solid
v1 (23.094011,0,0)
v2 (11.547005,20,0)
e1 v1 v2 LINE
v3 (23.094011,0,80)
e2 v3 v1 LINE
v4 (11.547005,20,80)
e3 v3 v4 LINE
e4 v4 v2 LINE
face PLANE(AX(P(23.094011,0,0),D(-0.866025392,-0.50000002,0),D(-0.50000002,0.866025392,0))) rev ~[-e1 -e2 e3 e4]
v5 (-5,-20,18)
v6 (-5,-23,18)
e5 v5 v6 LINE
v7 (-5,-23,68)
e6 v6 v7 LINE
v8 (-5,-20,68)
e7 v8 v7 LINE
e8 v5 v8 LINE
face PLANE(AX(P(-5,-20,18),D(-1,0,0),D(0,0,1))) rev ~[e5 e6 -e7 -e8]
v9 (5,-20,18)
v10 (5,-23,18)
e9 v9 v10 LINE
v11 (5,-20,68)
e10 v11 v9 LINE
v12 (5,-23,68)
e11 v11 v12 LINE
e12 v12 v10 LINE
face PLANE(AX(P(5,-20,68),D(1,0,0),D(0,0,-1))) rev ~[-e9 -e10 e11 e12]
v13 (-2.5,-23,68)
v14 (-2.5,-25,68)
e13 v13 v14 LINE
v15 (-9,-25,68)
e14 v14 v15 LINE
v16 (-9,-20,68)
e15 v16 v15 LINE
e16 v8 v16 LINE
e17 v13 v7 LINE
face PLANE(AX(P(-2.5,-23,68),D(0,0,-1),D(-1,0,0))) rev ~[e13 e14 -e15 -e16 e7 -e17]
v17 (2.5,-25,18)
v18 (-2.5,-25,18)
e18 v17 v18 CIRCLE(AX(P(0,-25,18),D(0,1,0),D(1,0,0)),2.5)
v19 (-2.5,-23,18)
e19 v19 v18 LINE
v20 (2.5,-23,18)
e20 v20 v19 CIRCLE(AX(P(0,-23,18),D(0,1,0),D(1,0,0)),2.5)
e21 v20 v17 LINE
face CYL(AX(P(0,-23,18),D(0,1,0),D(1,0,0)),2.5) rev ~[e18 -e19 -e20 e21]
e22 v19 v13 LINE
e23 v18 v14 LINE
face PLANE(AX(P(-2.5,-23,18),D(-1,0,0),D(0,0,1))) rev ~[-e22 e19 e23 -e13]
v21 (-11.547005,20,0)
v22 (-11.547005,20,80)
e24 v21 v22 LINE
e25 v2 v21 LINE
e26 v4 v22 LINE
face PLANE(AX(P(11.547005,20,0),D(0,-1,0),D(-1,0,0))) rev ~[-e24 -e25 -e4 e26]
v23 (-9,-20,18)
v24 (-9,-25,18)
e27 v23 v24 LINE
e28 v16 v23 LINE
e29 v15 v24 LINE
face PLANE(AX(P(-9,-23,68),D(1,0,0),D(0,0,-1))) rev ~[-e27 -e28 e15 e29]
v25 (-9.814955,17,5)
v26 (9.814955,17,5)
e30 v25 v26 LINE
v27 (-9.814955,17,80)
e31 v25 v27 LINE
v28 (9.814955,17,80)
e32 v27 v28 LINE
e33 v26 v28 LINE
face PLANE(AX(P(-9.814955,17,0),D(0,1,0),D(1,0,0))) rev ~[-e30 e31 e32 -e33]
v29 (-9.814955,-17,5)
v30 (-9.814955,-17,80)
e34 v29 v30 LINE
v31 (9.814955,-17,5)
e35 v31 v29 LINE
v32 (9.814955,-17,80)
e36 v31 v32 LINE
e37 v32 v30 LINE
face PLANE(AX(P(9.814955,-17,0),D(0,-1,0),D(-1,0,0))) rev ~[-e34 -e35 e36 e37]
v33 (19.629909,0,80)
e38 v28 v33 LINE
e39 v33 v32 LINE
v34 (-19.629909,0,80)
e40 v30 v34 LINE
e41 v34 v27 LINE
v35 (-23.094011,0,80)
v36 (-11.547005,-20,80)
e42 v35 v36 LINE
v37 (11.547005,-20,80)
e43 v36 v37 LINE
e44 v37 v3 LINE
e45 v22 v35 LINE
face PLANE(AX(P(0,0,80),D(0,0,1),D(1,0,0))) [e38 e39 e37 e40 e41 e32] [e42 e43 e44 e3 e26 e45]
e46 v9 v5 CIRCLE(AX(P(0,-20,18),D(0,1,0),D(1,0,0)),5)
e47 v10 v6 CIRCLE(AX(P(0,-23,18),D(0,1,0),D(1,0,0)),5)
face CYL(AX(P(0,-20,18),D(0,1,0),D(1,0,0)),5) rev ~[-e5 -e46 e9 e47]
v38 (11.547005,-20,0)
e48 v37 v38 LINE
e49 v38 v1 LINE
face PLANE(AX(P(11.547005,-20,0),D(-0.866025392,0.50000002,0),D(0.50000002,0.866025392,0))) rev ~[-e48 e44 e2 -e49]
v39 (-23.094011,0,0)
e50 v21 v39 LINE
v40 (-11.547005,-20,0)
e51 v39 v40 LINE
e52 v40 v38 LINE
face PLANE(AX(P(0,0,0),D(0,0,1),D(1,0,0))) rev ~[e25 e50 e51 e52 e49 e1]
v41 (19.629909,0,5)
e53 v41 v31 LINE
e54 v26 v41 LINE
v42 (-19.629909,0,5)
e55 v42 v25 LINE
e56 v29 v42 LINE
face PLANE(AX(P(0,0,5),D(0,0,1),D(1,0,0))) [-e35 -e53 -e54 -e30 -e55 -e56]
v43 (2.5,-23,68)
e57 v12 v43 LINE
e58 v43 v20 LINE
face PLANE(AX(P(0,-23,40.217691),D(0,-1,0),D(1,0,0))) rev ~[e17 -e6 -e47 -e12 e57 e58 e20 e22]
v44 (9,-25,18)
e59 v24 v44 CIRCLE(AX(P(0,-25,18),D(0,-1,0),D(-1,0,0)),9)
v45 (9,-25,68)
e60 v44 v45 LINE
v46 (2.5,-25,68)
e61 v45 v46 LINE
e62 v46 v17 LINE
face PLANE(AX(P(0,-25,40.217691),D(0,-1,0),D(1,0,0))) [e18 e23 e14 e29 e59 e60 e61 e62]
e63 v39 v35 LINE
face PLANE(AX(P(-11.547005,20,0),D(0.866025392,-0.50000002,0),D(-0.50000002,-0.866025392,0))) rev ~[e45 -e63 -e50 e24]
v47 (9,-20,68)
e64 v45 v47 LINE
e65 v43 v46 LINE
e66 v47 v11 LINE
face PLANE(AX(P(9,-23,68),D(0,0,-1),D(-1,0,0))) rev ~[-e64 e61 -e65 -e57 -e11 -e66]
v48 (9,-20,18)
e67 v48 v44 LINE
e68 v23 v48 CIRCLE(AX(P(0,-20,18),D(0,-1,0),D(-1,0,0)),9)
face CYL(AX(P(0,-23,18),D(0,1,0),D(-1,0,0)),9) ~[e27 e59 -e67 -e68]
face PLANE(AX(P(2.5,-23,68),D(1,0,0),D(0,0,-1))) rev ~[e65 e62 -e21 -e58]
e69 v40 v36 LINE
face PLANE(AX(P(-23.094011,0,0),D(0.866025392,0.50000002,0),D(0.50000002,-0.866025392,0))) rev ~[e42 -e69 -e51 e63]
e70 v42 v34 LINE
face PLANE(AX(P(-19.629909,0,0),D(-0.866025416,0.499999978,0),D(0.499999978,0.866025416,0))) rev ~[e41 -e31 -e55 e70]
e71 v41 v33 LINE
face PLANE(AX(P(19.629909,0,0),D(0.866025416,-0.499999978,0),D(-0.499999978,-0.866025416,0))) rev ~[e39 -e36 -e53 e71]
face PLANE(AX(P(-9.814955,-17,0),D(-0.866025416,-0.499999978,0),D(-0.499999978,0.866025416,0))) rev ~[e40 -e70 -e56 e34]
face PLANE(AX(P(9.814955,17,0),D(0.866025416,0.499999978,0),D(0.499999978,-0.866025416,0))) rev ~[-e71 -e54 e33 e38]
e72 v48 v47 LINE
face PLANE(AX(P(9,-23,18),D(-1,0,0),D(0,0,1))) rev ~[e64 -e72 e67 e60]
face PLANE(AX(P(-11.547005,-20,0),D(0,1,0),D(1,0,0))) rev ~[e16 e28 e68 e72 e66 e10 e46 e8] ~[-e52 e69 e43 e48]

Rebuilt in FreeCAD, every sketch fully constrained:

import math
import FreeCAD as App
import Part
import Sketcher
from FreeCAD import Vector
Q = App.Units.Quantity


def add_polygon(sketch, points):
    """Adds a closed chain of lines whose ends are joined by coincident constraints."""
    first, n = sketch.GeometryCount, len(points)
    for a, b in zip(points, points[1:] + points[:1]):
        sketch.addGeometry(Part.LineSegment(App.Vector(*a, 0), App.Vector(*b, 0)), False)
    for i in range(n):
        sketch.addConstraint(Sketcher.Constraint("Coincident", first + i, 2, first + (i + 1) % n, 1))

doc = App.newDocument("Part")
body = doc.addObject("PartDesign::Body", "Body")

# Sketch on XY plane
sketch1 = body.newObject("Sketcher::SketchObject", "Sketch")
sketch1.AttachmentSupport = (doc.getObject("XY_Plane"), [""])
sketch1.MapMode = "FlatFace"
add_polygon(sketch1, [(11.547005, 20), (-11.547005, 20), (-23.094011, 0), (-11.547005, -20), (11.547005, -20), (23.094011, 0)])  # lines 0-5
add_polygon(sketch1, [(9.814955, -17), (-9.814955, -17), (-19.629909, 0), (-9.814955, 17), (9.814955, 17), (19.629909, 0)])  # lines 6-11
sketch1.addConstraint([
    Sketcher.Constraint("Horizontal", 0),
    Sketcher.Constraint("Horizontal", 3),
    Sketcher.Constraint("Horizontal", 6),
    Sketcher.Constraint("Horizontal", 9),
    Sketcher.Constraint("Symmetric", 0, 2, 3, 2, -1, 1),
    Sketcher.Constraint("Symmetric", 1, 2, 4, 2, -1, 1),
    Sketcher.Constraint("Symmetric", 6, 2, 9, 2, -1, 1),
    Sketcher.Constraint("Symmetric", 7, 2, 10, 2, -1, 1),
    Sketcher.Constraint("PointOnObject", 1, 2, -1),
    Sketcher.Constraint("PointOnObject", 7, 2, -1),
    Sketcher.Constraint("Parallel", 2, 5),
    Sketcher.Constraint("Parallel", 5, 7),
    Sketcher.Constraint("Parallel", 4, 8),
    Sketcher.Constraint("Parallel", 8, 11),
    Sketcher.Constraint("Vertical", 0, 2, 2, 2),
    Sketcher.Constraint("Angle", 1, Q("-120.000001 deg")),
    Sketcher.Constraint("DistanceY", -1, 1, 0, 2, 20.0),
    Sketcher.Constraint("DistanceY", 6, 2, -1, 1, 17.0),
    Sketcher.Constraint("DistanceX", 0, 2, 0, 1, 23.09401),
    Sketcher.Constraint("DistanceX", 6, 2, 6, 1, 19.62991),
])
pad1 = body.newObject("PartDesign::Pad", "Pad")
pad1.Profile = sketch1
pad1.Length = 80

# Sketch on XY plane
sketch2 = body.newObject("Sketcher::SketchObject", "Sketch001")
sketch2.AttachmentSupport = (doc.getObject("XY_Plane"), [""])
sketch2.MapMode = "FlatFace"
add_polygon(sketch2, [(11.547005, 20), (-11.547005, 20), (-23.094011, 0), (-11.547005, -20), (11.547005, -20), (23.094011, 0)])  # lines 0-5
sketch2.addConstraint([
    Sketcher.Constraint("Horizontal", 0),
    Sketcher.Constraint("Horizontal", 3),
    Sketcher.Constraint("Symmetric", 0, 2, 3, 2, -1, 1),
    Sketcher.Constraint("Symmetric", 1, 2, 4, 2, -1, 1),
    Sketcher.Constraint("PointOnObject", 1, 2, -1),
    Sketcher.Constraint("Parallel", 2, 5),
    Sketcher.Constraint("Vertical", 0, 2, 2, 2),
    Sketcher.Constraint("Angle", 1, Q("-120.000001 deg")),
    Sketcher.Constraint("DistanceY", -1, 1, 0, 2, 20.0),
    Sketcher.Constraint("DistanceX", 0, 2, 0, 1, 23.09401),
])
pad2 = body.newObject("PartDesign::Pad", "Pad001")
pad2.Profile = sketch2
pad2.Length = 5

# Sketch on XZ plane
sketch3 = body.newObject("Sketcher::SketchObject", "Sketch002")
sketch3.AttachmentSupport = (doc.getObject("XZ_Plane"), [""])
sketch3.MapMode = "FlatFace"
sketch3.AttachmentOffset = App.Placement(Vector(0, 0, 20), App.Rotation())
sketch3.addGeometry([
    Part.LineSegment(Vector(-5, 18, 0), Vector(-5, 68, 0)),  # 0
    Part.LineSegment(Vector(-5, 68, 0), Vector(-9, 68, 0)),  # 1
    Part.LineSegment(Vector(-9, 68, 0), Vector(-9, 18, 0)),  # 2
    Part.ArcOfCircle(Part.Circle(Vector(0, 18, 0), Vector(0, 0, 1), 9), math.radians(180), math.radians(360)),  # 3
    Part.LineSegment(Vector(9, 18, 0), Vector(9, 68, 0)),  # 4
    Part.LineSegment(Vector(9, 68, 0), Vector(5, 68, 0)),  # 5
    Part.LineSegment(Vector(5, 68, 0), Vector(5, 18, 0)),  # 6
    Part.ArcOfCircle(Part.Circle(Vector(0, 18, 0), Vector(0, 0, 1), 5), math.radians(180), math.radians(360)),  # 7
], False)
sketch3.addConstraint([
    Sketcher.Constraint("Coincident", 0, 2, 1, 1),
    Sketcher.Constraint("Coincident", 1, 2, 2, 1),
    Sketcher.Constraint("Tangent", 2, 2, 3, 1),
    Sketcher.Constraint("Tangent", 3, 2, 4, 1),
    Sketcher.Constraint("Coincident", 4, 2, 5, 1),
    Sketcher.Constraint("Coincident", 5, 2, 6, 1),
    Sketcher.Constraint("Tangent", 6, 2, 7, 2),
    Sketcher.Constraint("Tangent", 7, 1, 0, 1),
    Sketcher.Constraint("Vertical", 0),
    Sketcher.Constraint("Horizontal", 1),
    Sketcher.Constraint("Vertical", 2),
    Sketcher.Constraint("Vertical", 4),
    Sketcher.Constraint("Horizontal", 5),
    Sketcher.Constraint("Vertical", 6),
    Sketcher.Constraint("Coincident", 7, 3, 3, 3),
    Sketcher.Constraint("Symmetric", 1, 2, 4, 2, -2),
    Sketcher.Constraint("Radius", 3, 9.0),
    Sketcher.Constraint("Radius", 7, 5.0),
    Sketcher.Constraint("DistanceY", 0, 1, 0, 2, 50.0),
    Sketcher.Constraint("DistanceY", -1, 1, 3, 3, 18.0),
])
pad3 = body.newObject("PartDesign::Pad", "Pad002")
pad3.Profile = sketch3
pad3.Length = 3

# Sketch on XZ plane
sketch4 = body.newObject("Sketcher::SketchObject", "Sketch003")
sketch4.AttachmentSupport = (doc.getObject("XZ_Plane"), [""])
sketch4.MapMode = "FlatFace"
sketch4.AttachmentOffset = App.Placement(Vector(0, 0, 23), App.Rotation())
sketch4.addGeometry([
    Part.LineSegment(Vector(-2.5, 68, 0), Vector(-9, 68, 0)),  # 0
    Part.LineSegment(Vector(-9, 68, 0), Vector(-9, 18, 0)),  # 1
    Part.ArcOfCircle(Part.Circle(Vector(0, 18, 0), Vector(0, 0, 1), 9), math.radians(180), math.radians(360)),  # 2
    Part.LineSegment(Vector(9, 18, 0), Vector(9, 68, 0)),  # 3
    Part.LineSegment(Vector(9, 68, 0), Vector(2.5, 68, 0)),  # 4
    Part.LineSegment(Vector(2.5, 68, 0), Vector(2.5, 18, 0)),  # 5
    Part.ArcOfCircle(Part.Circle(Vector(0, 18, 0), Vector(0, 0, 1), 2.5), math.radians(180), math.radians(360)),  # 6
    Part.LineSegment(Vector(-2.5, 18, 0), Vector(-2.5, 68, 0)),  # 7
], False)
sketch4.addConstraint([
    Sketcher.Constraint("Coincident", 0, 2, 1, 1),
    Sketcher.Constraint("Tangent", 1, 2, 2, 1),
    Sketcher.Constraint("Tangent", 2, 2, 3, 1),
    Sketcher.Constraint("Coincident", 3, 2, 4, 1),
    Sketcher.Constraint("Coincident", 4, 2, 5, 1),
    Sketcher.Constraint("Tangent", 5, 2, 6, 2),
    Sketcher.Constraint("Tangent", 6, 1, 7, 1),
    Sketcher.Constraint("Coincident", 7, 2, 0, 1),
    Sketcher.Constraint("Horizontal", 0),
    Sketcher.Constraint("Vertical", 1),
    Sketcher.Constraint("Vertical", 3),
    Sketcher.Constraint("Horizontal", 4),
    Sketcher.Constraint("Vertical", 5),
    Sketcher.Constraint("Vertical", 7),
    Sketcher.Constraint("Coincident", 6, 3, 2, 3),
    Sketcher.Constraint("Symmetric", 0, 2, 3, 2, -2),
    Sketcher.Constraint("Radius", 2, 9.0),
    Sketcher.Constraint("Radius", 6, 2.5),
    Sketcher.Constraint("DistanceY", 1, 2, 1, 1, 50.0),
    Sketcher.Constraint("DistanceY", -1, 1, 2, 3, 18.0),
])
pad4 = body.newObject("PartDesign::Pad", "Pad003")
pad4.Profile = sketch4
pad4.Length = 2

doc.recompute()
